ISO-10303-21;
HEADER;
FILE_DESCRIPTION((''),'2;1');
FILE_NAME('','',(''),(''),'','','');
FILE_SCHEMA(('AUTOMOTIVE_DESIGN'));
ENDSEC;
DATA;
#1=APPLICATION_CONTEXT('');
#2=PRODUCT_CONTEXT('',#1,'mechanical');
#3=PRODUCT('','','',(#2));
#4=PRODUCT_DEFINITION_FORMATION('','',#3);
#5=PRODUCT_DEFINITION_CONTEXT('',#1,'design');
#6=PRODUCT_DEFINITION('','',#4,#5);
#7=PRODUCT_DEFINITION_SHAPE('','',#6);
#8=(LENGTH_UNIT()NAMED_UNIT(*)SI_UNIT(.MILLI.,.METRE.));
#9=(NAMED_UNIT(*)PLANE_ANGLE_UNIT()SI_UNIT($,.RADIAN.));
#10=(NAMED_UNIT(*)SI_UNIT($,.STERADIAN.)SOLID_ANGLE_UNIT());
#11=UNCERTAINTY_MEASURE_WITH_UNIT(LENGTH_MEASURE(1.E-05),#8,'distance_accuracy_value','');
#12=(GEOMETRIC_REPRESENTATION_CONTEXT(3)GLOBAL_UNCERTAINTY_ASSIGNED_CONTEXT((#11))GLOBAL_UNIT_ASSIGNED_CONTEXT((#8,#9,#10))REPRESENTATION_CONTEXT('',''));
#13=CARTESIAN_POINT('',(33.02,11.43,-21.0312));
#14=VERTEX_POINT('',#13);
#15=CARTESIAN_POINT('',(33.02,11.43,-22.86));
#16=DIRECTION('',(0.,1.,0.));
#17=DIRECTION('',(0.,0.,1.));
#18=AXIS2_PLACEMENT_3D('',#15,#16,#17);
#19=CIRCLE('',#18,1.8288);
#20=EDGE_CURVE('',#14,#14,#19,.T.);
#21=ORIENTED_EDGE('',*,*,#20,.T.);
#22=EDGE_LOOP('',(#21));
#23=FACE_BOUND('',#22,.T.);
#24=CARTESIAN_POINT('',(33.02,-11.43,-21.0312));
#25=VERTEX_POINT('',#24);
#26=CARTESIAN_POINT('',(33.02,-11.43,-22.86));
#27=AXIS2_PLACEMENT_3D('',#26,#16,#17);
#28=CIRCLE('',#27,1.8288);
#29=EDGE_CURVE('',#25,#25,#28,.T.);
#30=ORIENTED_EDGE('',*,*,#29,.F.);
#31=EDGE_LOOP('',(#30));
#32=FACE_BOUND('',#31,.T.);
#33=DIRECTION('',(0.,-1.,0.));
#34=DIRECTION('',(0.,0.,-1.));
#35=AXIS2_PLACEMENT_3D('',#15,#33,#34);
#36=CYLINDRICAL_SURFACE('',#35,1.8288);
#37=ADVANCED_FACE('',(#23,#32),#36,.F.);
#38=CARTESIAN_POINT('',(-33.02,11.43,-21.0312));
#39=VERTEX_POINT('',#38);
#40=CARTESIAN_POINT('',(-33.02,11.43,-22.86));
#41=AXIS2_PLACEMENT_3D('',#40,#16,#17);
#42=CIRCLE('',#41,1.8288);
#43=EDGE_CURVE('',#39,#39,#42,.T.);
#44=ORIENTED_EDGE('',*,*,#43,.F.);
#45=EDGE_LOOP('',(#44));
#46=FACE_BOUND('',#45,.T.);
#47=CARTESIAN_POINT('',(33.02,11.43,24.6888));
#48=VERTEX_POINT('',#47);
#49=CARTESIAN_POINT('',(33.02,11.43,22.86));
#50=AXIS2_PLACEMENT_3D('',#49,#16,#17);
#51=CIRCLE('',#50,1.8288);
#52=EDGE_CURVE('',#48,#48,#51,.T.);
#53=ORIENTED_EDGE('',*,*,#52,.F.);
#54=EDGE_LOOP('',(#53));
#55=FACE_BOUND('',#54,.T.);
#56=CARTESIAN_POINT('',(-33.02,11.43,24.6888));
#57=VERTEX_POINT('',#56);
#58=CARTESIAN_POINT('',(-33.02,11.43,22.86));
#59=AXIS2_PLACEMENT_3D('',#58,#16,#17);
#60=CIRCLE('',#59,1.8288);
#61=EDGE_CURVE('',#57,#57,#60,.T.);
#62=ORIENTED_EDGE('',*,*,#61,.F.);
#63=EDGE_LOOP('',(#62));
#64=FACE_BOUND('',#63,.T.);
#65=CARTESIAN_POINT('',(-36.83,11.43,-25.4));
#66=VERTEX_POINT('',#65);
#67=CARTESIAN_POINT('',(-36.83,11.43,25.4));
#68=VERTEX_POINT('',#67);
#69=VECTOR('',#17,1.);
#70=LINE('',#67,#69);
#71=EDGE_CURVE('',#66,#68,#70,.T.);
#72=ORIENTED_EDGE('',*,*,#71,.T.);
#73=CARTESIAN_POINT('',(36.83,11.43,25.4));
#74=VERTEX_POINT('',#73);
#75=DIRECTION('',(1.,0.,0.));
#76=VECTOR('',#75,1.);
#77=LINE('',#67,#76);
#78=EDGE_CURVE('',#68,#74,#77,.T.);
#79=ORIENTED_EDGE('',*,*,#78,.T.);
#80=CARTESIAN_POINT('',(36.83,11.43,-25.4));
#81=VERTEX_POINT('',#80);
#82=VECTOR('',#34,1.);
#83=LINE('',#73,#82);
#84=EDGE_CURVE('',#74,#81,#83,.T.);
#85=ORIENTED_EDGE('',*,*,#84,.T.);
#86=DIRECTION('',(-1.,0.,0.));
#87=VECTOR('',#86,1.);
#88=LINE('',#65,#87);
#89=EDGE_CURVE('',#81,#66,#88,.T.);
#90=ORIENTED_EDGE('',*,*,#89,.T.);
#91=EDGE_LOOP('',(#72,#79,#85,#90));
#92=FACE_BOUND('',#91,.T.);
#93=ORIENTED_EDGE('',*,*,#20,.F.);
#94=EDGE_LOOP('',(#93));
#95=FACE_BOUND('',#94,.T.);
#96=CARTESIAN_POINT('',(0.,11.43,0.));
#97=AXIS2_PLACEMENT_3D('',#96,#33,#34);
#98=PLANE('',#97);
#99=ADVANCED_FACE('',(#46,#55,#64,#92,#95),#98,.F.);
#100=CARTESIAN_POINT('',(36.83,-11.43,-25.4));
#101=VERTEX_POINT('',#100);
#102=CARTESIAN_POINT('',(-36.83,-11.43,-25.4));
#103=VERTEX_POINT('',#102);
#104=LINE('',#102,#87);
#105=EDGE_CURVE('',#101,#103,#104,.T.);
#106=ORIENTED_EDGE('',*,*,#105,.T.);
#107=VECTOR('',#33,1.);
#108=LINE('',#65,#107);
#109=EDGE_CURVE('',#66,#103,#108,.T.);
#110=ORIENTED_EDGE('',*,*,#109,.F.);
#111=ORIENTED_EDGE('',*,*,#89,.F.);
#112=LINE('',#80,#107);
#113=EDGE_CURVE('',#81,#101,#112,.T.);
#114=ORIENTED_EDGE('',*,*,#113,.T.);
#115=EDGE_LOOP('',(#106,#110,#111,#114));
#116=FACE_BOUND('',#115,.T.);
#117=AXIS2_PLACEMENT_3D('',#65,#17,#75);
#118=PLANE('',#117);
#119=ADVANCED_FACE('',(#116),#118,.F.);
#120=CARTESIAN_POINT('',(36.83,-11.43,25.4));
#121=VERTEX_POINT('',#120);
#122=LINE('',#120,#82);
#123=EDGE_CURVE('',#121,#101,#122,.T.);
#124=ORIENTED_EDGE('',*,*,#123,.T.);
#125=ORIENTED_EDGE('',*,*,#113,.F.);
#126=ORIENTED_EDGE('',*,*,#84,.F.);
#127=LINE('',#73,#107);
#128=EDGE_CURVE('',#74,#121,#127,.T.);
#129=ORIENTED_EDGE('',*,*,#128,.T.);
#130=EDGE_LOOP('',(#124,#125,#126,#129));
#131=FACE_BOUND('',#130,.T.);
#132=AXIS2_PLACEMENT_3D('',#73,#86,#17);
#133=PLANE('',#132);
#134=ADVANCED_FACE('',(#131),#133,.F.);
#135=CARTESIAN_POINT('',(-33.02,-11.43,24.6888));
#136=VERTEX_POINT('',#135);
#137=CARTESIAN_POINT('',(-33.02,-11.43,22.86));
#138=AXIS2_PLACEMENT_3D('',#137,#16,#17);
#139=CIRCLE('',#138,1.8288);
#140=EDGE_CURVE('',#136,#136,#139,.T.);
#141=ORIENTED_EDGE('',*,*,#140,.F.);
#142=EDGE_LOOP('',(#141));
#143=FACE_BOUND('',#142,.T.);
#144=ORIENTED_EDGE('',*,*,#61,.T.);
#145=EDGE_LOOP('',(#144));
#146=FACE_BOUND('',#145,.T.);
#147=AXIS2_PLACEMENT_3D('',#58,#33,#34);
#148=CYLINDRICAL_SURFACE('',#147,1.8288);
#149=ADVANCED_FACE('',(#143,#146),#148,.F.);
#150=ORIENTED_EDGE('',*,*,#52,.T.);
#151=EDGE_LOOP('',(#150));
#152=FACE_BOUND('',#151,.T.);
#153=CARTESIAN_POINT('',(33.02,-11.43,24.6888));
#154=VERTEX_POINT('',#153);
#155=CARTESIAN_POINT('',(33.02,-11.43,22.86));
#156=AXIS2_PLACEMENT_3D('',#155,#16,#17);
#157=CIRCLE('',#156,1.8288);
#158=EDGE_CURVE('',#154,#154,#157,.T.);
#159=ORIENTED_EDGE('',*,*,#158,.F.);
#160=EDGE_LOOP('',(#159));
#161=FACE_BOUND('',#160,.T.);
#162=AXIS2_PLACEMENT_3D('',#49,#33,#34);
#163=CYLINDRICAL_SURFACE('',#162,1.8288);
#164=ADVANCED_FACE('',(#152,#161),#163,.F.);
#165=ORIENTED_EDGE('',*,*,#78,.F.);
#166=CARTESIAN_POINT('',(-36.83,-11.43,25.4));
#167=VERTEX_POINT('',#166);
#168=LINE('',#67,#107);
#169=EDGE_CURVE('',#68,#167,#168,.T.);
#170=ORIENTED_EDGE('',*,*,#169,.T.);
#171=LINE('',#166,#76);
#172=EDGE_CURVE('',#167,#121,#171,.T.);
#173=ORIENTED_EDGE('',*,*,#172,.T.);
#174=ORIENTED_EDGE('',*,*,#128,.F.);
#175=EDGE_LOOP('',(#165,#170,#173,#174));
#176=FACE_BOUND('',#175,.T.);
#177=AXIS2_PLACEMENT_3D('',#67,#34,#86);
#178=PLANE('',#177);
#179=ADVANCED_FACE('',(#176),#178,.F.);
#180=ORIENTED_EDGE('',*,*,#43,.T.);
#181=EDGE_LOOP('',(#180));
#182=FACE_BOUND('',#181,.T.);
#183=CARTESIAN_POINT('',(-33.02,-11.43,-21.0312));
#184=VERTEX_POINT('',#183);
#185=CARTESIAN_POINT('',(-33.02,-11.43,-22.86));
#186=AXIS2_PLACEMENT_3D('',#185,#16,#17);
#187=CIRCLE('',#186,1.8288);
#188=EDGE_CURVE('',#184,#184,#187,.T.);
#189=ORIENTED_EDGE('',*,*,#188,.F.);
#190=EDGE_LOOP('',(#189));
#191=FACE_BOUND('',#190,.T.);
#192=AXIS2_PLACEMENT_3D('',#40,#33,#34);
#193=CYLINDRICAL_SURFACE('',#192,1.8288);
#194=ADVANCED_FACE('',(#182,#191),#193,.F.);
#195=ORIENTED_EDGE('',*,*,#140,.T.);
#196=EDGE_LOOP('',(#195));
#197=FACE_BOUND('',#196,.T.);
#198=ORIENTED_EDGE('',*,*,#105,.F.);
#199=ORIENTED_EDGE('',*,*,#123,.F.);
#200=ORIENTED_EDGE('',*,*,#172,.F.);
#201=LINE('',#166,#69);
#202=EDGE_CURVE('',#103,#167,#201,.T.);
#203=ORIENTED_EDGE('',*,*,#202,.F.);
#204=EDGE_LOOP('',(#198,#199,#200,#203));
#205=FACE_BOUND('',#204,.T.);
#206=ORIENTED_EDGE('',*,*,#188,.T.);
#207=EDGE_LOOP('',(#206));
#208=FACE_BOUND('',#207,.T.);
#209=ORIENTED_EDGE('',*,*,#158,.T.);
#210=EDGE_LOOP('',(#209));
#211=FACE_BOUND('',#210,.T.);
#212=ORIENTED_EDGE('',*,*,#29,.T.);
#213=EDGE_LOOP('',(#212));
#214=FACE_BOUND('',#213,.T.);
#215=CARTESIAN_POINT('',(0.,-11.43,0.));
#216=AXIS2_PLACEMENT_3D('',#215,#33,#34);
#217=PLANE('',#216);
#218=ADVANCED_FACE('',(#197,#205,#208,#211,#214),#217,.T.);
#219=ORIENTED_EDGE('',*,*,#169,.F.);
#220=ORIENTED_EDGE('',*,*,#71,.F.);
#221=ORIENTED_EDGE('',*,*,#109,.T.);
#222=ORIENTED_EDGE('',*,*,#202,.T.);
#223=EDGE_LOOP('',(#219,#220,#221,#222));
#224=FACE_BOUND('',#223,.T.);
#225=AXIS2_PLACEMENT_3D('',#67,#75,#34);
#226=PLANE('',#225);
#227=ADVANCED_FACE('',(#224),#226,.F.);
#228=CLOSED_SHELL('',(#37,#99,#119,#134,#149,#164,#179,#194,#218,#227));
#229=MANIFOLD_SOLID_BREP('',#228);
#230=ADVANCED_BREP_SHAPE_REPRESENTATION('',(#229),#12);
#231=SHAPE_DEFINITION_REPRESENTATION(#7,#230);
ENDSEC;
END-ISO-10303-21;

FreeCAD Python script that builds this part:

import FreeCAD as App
import Part
import Sketcher
Q = App.Units.Quantity


def add_polygon(sketch, points):
    """Adds a closed chain of lines whose ends are joined by coincident constraints."""
    first, n = sketch.GeometryCount, len(points)
    for a, b in zip(points, points[1:] + points[:1]):
        sketch.addGeometry(Part.LineSegment(App.Vector(*a, 0), App.Vector(*b, 0)), False)
    for i in range(n):
        sketch.addConstraint(Sketcher.Constraint("Coincident", first + i, 2, first + (i + 1) % n, 1))

doc = App.newDocument("Part")
body = doc.addObject("PartDesign::Body", "Body")

# Sketch on XZ plane
sketch1 = doc.addObject("Sketcher::SketchObject", "Sketch")
body.addObject(sketch1)
sketch1.AttachmentSupport = (doc.XZ_Plane, [""])
sketch1.MapMode = "FlatFace"
add_polygon(sketch1, [(-36.8, -25.4), (-36.8, 25.4), (36.8, 25.4), (36.8, -25.4)])  # lines 0-3
sketch1.addGeometry(Part.Circle(App.Vector(-33, 22.9, 0), App.Vector(0, 0, 1), 1.8), False)  # 4
sketch1.addGeometry(Part.Circle(App.Vector(33, 22.9, 0), App.Vector(0, 0, 1), 1.8), False)  # 5
sketch1.addGeometry(Part.Circle(App.Vector(-33, -22.9, 0), App.Vector(0, 0, 1), 1.8), False)  # 6
sketch1.addGeometry(Part.Circle(App.Vector(33, -22.9, 0), App.Vector(0, 0, 1), 1.8), False)  # 7
sketch1.addConstraint(Sketcher.Constraint("Vertical", 0))
sketch1.addConstraint(Sketcher.Constraint("Horizontal", 1))
sketch1.addConstraint(Sketcher.Constraint("Vertical", 2))
sketch1.addConstraint(Sketcher.Constraint("Horizontal", 3))
sketch1.addConstraint(Sketcher.Constraint("Equal", 4, 5))
sketch1.addConstraint(Sketcher.Constraint("Equal", 5, 6))
sketch1.addConstraint(Sketcher.Constraint("Equal", 6, 7))
sketch1.addConstraint(Sketcher.Constraint("Symmetric", 5, 3, 6, 3, -1, 1))
sketch1.addConstraint(Sketcher.Constraint("Symmetric", 4, 3, 7, 3, -1, 1))
sketch1.addConstraint(Sketcher.Constraint("Symmetric", 0, 2, 2, 2, -1, 1))
sketch1.addConstraint(Sketcher.Constraint("Symmetric", 4, 3, 5, 3, -2))
sketch1.addConstraint(Sketcher.Constraint("DistanceY", 0, 1, 0, 2, Q("2 in")))
sketch1.addConstraint(Sketcher.Constraint("Diameter", 4, Q("0.144 in")))
sketch1.addConstraint(Sketcher.Constraint("DistanceX", 1, 1, 1, 2, Q("2.9 in")))
sketch1.addConstraint(Sketcher.Constraint("DistanceX", 4, 3, -1, 1, Q("1.3 in")))
sketch1.addConstraint(Sketcher.Constraint("DistanceY", -1, 1, 4, 3, Q("0.9 in")))
pad1 = doc.addObject("PartDesign::Pad", "Pad")
body.addObject(pad1)
pad1.Profile = sketch1
pad1.Length = Q("0.9 in")
pad1.Midplane = True

doc.recompute()
